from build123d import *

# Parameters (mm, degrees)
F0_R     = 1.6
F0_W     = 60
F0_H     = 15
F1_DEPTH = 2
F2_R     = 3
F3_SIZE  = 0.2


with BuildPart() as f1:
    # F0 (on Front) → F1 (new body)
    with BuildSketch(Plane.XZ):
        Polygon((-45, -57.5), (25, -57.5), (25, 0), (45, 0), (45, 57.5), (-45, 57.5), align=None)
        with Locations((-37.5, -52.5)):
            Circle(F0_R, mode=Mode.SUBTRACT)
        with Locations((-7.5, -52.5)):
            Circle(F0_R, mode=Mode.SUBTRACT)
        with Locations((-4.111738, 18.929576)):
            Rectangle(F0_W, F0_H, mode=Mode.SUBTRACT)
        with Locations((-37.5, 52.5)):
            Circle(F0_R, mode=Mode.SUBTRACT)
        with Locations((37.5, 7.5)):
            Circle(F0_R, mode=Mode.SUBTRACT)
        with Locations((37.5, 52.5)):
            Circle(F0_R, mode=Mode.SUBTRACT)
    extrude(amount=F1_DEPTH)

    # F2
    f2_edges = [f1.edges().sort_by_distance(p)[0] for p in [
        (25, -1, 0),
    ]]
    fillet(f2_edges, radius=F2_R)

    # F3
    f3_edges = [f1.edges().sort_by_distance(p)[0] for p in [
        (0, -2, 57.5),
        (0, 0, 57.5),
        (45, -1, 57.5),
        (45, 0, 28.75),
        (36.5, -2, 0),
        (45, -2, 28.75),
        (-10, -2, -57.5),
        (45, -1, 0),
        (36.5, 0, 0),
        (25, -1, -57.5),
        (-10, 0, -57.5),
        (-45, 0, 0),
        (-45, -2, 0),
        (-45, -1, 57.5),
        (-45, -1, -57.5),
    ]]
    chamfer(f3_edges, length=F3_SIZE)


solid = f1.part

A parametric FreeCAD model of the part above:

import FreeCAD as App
import Part
import Sketcher
from FreeCAD import Vector


def edges_at(feature, points):
    """Names of the edges that pass closest to the given points."""
    edges = feature.Shape.Edges
    near = lambda p: min(range(len(edges)), key=lambda i: edges[i].distToShape(Part.Vertex(*p))[0])
    return sorted({f"Edge{near(p) + 1}" for p in points})


def add_polygon(sketch, points):
    """Adds a closed chain of lines whose ends are joined by coincident constraints."""
    first, n = sketch.GeometryCount, len(points)
    for a, b in zip(points, points[1:] + points[:1]):
        sketch.addGeometry(Part.LineSegment(App.Vector(*a, 0), App.Vector(*b, 0)), False)
    for i in range(n):
        sketch.addConstraint(Sketcher.Constraint("Coincident", first + i, 2, first + (i + 1) % n, 1))

doc = App.newDocument("Part")
body = doc.addObject("PartDesign::Body", "Body")

# Sketch on XZ plane
sketch1 = body.newObject("Sketcher::SketchObject", "Sketch")
sketch1.AttachmentSupport = (doc.getObject("XZ_Plane"), [""])
sketch1.MapMode = "FlatFace"
add_polygon(sketch1, [(-45, -57.5), (25, -57.5), (25, 0), (45, 0), (45, 57.5), (-45, 57.5)])  # lines 0-5
sketch1.addGeometry(Part.Circle(Vector(-37.5, -52.5, 0), Vector(0, 0, 1), 1.6), False)  # 6
sketch1.addGeometry(Part.Circle(Vector(-7.5, -52.5, 0), Vector(0, 0, 1), 1.6), False)  # 7
add_polygon(sketch1, [(25.9, 11.4), (-34.1, 11.4), (-34.1, 26.4), (25.9, 26.4)])  # lines 8-11
sketch1.addGeometry(Part.Circle(Vector(-37.5, 52.5, 0), Vector(0, 0, 1), 1.6), False)  # 12
sketch1.addGeometry(Part.Circle(Vector(37.5, 7.5, 0), Vector(0, 0, 1), 1.6), False)  # 13
sketch1.addGeometry(Part.Circle(Vector(37.5, 52.5, 0), Vector(0, 0, 1), 1.6), False)  # 14
sketch1.addConstraint(Sketcher.Constraint("Horizontal", 0))
sketch1.addConstraint(Sketcher.Constraint("Vertical", 1))
sketch1.addConstraint(Sketcher.Constraint("Horizontal", 2))
sketch1.addConstraint(Sketcher.Constraint("Vertical", 3))
sketch1.addConstraint(Sketcher.Constraint("Horizontal", 4))
sketch1.addConstraint(Sketcher.Constraint("Vertical", 5))
sketch1.addConstraint(Sketcher.Constraint("Horizontal", 8))
sketch1.addConstraint(Sketcher.Constraint("Vertical", 9))
sketch1.addConstraint(Sketcher.Constraint("Horizontal", 10))
sketch1.addConstraint(Sketcher.Constraint("Vertical", 11))
sketch1.addConstraint(Sketcher.Constraint("Equal", 6, 7))
sketch1.addConstraint(Sketcher.Constraint("Equal", 7, 12))
sketch1.addConstraint(Sketcher.Constraint("Equal", 12, 13))
sketch1.addConstraint(Sketcher.Constraint("Equal", 13, 14))
sketch1.addConstraint(Sketcher.Constraint("Symmetric", 6, 3, 14, 3, -1, 1))
sketch1.addConstraint(Sketcher.Constraint("Symmetric", 3, 2, 5, 2, -1, 1))
sketch1.addConstraint(Sketcher.Constraint("Symmetric", 12, 3, 14, 3, -2))
sketch1.addConstraint(Sketcher.Constraint("PointOnObject", 1, 2, -1))
sketch1.addConstraint(Sketcher.Constraint("Horizontal", 6, 3, 7, 3))
sketch1.addConstraint(Sketcher.Constraint("Vertical", 13, 3, 14, 3))
sketch1.addConstraint(Sketcher.Constraint("Diameter", 6, 3.2))
sketch1.addConstraint(Sketcher.Constraint("DistanceX", 0, 1, 0, 2, 70.0))
sketch1.addConstraint(Sketcher.Constraint("DistanceX", 2, 1, 2, 2, 20.0))
sketch1.addConstraint(Sketcher.Constraint("DistanceX", 8, 2, 8, 1, 60.0))
sketch1.addConstraint(Sketcher.Constraint("DistanceY", 5, 2, 5, 1, 115.0))
sketch1.addConstraint(Sketcher.Constraint("DistanceY", 9, 1, 9, 2, 15.0))
sketch1.addConstraint(Sketcher.Constraint("DistanceX", 6, 3, 7, 3, 30.0))
sketch1.addConstraint(Sketcher.Constraint("DistanceY", 6, 3, 12, 3, 105.0))
sketch1.addConstraint(Sketcher.Constraint("DistanceX", 7, 3, 13, 3, 45.0))
sketch1.addConstraint(Sketcher.Constraint("DistanceY", 7, 3, 13, 3, 60.0))
sketch1.addConstraint(Sketcher.Constraint("DistanceX", 8, 2, -1, 1, 34.111738))
sketch1.addConstraint(Sketcher.Constraint("DistanceY", -1, 1, 8, 2, 11.429576))
pad1 = body.newObject("PartDesign::Pad", "Pad")
pad1.Profile = sketch1
pad1.Length = 2
doc.recompute()

fillet = body.newObject("PartDesign::Fillet", "Fillet")
fillet.Base = (pad1, edges_at(pad1, [(25, -1, 0)]))
fillet.Radius = 3
doc.recompute()

chamfer = body.newObject("PartDesign::Chamfer", "Chamfer")
chamfer.Base = (fillet, edges_at(fillet, [
    (0, -2, 57.5),
    (0, 0, 57.5),
    (45, -1, 57.5),
    (45, 0, 28.75),
    (36.5, -2, 0),
    (45, -2, 28.75),
    (-10, -2, -57.5),
    (45, -1, 0),
    (36.5, 0, 0),
    (25, -1, -57.5),
    (-10, 0, -57.5),
    (-45, 0, 0),
    (-45, -2, 0),
    (-45, -1, 57.5),
    (-45, -1, -57.5),
]))
chamfer.Size = 0.2

doc.recompute()
